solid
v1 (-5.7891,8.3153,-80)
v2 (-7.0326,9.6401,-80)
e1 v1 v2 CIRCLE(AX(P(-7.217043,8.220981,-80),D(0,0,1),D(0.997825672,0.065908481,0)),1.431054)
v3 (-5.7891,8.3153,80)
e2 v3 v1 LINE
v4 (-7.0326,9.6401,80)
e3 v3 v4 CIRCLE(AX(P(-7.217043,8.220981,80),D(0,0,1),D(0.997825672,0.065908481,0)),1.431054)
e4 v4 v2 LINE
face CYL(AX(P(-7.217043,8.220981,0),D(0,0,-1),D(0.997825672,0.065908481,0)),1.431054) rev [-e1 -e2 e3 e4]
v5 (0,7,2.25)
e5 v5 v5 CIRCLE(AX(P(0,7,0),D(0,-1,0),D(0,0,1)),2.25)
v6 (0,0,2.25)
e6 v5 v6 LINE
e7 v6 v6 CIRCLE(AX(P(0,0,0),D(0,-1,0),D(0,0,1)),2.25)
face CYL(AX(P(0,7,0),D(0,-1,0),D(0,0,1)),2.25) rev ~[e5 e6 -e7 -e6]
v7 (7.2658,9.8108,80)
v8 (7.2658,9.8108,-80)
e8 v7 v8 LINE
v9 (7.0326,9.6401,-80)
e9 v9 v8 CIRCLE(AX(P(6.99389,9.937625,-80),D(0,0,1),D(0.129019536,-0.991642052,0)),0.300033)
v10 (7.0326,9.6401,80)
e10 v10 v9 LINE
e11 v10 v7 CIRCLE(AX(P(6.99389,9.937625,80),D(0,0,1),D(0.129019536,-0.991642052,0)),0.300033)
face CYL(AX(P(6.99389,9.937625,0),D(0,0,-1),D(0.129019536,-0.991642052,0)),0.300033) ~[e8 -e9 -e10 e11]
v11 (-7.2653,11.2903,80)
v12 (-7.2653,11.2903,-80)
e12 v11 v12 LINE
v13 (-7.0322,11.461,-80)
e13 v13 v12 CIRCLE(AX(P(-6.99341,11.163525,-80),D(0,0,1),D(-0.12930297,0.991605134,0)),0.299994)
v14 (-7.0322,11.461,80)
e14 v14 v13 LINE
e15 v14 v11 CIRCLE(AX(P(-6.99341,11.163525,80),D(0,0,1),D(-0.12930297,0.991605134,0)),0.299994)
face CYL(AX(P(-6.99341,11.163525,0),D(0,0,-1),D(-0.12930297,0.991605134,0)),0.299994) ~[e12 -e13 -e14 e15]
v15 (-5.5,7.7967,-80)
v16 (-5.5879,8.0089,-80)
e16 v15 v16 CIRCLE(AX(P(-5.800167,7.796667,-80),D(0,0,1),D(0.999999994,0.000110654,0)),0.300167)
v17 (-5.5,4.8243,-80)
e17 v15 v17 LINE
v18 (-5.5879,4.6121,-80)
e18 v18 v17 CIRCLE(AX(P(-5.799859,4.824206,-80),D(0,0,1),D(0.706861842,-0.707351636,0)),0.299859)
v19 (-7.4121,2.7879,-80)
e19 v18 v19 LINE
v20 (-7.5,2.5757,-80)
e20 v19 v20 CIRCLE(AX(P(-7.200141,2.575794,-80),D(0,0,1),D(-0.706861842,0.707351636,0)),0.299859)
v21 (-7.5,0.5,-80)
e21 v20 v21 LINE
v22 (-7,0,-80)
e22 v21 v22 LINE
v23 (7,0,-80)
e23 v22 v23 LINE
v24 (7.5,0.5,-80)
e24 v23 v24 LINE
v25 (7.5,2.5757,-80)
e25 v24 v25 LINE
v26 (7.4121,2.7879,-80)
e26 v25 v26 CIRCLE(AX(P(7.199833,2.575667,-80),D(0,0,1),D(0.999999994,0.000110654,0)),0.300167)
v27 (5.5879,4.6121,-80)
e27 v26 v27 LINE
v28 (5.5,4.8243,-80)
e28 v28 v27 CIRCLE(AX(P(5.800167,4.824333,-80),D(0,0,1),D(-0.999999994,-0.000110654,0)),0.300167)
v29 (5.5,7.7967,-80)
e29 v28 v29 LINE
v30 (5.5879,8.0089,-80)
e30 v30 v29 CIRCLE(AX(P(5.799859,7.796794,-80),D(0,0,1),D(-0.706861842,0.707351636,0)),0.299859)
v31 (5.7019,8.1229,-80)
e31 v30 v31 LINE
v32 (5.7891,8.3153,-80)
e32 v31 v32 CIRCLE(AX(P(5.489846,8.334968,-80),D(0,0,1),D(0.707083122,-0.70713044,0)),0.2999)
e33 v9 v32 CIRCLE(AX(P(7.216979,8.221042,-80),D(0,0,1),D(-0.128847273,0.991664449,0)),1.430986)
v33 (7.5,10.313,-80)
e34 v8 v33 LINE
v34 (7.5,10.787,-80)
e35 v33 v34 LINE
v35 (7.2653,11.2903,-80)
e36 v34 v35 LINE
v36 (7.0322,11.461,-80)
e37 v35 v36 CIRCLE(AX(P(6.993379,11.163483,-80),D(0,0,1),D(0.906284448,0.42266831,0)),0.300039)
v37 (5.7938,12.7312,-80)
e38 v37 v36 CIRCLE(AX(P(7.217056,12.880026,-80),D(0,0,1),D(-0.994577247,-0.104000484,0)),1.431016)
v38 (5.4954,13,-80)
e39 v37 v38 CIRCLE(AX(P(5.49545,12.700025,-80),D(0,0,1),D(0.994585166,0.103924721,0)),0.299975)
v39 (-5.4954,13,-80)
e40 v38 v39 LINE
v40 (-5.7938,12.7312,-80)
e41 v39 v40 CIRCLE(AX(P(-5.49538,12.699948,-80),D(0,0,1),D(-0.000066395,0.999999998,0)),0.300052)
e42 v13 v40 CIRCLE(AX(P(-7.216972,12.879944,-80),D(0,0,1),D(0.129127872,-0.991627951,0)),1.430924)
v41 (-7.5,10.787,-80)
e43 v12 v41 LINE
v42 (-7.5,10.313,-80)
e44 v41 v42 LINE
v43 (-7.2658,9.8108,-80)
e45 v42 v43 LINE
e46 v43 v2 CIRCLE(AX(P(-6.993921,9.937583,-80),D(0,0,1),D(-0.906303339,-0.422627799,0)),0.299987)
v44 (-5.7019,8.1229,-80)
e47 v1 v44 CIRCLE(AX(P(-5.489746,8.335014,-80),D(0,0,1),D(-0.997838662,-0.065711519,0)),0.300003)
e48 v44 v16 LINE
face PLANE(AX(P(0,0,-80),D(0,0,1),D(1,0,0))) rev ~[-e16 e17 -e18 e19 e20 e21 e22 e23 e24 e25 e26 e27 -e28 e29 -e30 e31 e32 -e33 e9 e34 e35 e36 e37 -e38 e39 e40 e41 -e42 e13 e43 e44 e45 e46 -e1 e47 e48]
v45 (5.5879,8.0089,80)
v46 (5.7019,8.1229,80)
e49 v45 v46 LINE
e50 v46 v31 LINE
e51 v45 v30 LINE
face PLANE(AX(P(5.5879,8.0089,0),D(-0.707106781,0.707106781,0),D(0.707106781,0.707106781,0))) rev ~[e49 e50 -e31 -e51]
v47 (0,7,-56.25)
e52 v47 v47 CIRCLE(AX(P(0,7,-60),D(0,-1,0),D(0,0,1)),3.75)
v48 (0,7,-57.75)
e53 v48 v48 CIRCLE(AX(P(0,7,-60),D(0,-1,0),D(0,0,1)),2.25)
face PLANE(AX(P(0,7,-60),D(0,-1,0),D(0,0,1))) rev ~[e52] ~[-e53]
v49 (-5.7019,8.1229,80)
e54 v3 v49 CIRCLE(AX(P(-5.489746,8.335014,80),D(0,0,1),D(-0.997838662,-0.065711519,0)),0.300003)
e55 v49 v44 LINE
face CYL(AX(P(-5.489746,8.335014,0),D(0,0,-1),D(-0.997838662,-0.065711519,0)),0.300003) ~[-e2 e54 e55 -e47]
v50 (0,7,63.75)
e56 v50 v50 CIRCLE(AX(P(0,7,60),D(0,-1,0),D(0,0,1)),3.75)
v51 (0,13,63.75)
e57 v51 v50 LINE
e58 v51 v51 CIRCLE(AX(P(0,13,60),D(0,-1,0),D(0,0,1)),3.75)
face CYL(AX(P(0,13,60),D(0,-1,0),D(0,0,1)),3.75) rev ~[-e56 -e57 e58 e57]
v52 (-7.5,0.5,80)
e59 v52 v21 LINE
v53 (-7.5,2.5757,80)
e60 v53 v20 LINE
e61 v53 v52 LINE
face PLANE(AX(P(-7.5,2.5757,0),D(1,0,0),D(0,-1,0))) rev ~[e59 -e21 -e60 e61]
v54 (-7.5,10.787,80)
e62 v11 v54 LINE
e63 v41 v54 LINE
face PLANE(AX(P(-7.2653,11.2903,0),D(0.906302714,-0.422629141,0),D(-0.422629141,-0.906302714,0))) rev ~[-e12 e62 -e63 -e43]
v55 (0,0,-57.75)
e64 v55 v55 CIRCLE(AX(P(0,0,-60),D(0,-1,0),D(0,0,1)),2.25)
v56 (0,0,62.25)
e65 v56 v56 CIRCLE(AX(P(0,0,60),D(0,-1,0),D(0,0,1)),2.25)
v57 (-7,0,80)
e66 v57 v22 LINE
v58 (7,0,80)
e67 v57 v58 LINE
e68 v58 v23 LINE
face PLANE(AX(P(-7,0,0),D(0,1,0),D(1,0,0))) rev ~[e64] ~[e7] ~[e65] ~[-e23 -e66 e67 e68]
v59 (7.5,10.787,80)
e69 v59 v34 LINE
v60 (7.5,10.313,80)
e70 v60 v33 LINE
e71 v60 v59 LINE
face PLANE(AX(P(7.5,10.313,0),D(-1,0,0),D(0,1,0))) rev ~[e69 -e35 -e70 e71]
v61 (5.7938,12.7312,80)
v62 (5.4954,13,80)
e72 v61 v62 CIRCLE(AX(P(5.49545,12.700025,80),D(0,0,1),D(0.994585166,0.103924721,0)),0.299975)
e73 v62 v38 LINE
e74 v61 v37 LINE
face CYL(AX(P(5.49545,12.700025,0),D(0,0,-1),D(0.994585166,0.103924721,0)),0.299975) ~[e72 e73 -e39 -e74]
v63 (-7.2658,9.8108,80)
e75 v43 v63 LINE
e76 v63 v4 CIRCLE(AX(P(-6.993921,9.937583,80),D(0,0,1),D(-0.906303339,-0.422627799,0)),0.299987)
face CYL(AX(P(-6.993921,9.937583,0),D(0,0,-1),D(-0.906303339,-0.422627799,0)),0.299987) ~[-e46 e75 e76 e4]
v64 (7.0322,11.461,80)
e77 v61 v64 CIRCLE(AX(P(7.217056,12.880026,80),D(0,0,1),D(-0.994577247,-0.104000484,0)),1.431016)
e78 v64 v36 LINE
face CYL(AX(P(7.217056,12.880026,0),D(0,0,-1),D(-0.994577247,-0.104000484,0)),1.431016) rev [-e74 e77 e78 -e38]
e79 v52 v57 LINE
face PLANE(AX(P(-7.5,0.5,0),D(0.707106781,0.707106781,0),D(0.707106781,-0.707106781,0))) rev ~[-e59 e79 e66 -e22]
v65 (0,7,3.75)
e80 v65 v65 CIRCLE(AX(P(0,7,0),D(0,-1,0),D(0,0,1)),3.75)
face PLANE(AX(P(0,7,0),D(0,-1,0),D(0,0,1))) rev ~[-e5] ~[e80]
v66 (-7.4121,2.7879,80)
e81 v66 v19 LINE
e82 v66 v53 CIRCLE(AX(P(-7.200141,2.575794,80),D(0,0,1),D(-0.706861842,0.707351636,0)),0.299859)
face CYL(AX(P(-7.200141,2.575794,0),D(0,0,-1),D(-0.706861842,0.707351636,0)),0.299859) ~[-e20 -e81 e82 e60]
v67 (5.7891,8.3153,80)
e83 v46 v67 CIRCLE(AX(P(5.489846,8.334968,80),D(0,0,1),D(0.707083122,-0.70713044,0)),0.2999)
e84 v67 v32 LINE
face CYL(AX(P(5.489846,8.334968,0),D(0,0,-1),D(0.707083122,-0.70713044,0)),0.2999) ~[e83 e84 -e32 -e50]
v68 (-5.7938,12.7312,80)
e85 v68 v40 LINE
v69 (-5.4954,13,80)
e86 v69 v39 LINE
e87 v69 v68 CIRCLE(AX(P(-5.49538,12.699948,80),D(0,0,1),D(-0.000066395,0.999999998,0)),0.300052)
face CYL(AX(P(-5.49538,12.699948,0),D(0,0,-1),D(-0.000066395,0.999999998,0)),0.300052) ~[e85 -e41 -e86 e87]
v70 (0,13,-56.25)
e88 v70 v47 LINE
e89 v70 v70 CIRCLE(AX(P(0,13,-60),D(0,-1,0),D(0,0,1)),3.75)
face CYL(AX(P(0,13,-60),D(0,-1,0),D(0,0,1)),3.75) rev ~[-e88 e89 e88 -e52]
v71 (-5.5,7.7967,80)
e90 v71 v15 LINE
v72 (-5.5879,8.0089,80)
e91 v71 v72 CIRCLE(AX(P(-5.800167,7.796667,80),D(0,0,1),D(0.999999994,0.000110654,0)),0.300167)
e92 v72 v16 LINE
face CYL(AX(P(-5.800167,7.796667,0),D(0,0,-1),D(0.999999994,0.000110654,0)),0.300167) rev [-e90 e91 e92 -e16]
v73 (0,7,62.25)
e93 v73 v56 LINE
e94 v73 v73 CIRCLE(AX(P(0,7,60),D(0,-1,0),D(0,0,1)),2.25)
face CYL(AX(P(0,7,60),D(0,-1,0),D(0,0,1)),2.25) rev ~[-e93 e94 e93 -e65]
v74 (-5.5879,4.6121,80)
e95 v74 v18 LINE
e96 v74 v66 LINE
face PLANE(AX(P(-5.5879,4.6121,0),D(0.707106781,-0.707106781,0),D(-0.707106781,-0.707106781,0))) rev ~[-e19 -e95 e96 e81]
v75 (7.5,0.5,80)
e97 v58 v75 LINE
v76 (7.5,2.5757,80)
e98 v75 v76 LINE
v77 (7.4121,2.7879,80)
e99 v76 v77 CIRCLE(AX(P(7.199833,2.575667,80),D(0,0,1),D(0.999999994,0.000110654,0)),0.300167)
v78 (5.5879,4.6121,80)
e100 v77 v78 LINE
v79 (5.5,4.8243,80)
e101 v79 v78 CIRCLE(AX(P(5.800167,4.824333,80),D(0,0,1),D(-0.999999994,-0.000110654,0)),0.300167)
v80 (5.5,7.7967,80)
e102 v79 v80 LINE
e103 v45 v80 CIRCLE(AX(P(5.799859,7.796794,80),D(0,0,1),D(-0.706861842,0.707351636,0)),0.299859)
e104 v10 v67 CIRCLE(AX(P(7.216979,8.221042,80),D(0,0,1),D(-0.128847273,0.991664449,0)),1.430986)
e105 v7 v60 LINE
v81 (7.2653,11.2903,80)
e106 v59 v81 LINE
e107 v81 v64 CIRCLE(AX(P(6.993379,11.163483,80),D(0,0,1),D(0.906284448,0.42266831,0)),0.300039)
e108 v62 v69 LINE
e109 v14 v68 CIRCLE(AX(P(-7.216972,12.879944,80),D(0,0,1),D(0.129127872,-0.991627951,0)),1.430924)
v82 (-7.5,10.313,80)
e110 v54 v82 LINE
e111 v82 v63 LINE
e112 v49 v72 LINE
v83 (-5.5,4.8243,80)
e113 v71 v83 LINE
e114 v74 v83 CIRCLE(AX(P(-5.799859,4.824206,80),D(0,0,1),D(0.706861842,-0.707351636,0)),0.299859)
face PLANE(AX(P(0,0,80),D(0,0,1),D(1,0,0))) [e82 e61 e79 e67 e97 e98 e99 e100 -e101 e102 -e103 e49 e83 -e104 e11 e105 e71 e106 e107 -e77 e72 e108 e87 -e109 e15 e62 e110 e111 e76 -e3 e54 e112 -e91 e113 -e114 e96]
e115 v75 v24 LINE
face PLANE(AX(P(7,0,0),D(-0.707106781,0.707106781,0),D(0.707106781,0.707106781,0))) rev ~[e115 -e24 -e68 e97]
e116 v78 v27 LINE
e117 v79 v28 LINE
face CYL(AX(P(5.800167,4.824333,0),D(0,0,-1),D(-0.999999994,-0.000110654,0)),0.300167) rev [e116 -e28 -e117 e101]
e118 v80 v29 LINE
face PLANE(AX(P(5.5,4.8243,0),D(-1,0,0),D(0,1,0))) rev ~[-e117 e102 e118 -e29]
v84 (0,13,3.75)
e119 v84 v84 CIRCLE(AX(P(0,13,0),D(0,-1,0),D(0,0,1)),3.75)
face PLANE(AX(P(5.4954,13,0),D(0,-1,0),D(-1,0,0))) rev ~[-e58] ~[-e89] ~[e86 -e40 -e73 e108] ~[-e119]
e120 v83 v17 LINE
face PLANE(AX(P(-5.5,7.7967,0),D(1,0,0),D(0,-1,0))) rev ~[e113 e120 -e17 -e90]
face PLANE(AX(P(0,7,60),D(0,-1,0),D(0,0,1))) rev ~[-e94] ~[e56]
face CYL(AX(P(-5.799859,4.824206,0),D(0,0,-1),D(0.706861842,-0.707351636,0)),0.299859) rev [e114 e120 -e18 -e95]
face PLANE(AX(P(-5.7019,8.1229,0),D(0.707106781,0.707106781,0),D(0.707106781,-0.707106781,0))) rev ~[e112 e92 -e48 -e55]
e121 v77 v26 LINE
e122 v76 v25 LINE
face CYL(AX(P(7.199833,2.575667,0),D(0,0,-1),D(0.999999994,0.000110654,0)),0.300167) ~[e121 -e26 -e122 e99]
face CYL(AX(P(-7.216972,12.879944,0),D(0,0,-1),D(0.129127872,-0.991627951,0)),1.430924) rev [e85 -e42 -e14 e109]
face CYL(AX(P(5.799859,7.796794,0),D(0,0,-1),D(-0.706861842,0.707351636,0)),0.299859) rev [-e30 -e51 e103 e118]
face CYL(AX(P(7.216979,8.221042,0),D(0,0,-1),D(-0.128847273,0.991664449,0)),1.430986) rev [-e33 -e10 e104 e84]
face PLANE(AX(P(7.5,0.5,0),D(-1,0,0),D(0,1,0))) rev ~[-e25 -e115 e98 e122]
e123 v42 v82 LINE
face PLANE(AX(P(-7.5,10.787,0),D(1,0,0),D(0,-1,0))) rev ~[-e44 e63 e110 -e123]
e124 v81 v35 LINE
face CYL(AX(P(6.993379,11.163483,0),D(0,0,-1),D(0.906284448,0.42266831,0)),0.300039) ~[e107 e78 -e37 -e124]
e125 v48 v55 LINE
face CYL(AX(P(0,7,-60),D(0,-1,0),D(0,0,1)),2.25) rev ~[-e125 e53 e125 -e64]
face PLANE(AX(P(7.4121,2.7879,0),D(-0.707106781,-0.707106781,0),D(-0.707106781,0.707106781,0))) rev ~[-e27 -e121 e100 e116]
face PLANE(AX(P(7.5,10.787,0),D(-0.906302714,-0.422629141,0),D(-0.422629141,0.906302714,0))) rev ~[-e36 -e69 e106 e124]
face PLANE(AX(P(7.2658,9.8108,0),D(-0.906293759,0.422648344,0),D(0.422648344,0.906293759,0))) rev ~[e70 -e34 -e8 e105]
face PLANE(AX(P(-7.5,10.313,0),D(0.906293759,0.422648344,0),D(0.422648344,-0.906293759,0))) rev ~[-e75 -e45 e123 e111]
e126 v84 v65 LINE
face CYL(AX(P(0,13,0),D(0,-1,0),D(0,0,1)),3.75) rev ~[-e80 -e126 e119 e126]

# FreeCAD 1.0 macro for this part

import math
import FreeCAD as App
import Part
import Sketcher
from FreeCAD import Vector
Q = App.Units.Quantity

doc = App.newDocument("Part")
body = doc.addObject("PartDesign::Body", "Body")

sketch1 = body.newObject("Sketcher::SketchObject", "Sketch")
sketch1.AttachmentSupport = (doc.getObject("XY_Plane"), [""])
sketch1.MapMode = "FlatFace"
sketch1.addGeometry([
    Part.LineSegment(Vector(-7.27, 11.29, 0), Vector(-7.5, 10.79, 0)),
    Part.LineSegment(Vector(-7.5, 10.79, 0), Vector(-7.5, 10.31, 0)),
    Part.LineSegment(Vector(-7.5, 10.31, 0), Vector(-7.27, 9.81, 0)),
    Part.ArcOfCircle(Part.Circle(Vector(-6.99, 9.94, 0), Vector(0, 0, 1), 0.3), math.radians(-155), math.radians(-97)),
    Part.ArcOfCircle(Part.Circle(Vector(-7.22, 8.22, 0), Vector(0, 0, 1), 1.43), math.radians(4), math.radians(83)),
    Part.ArcOfCircle(Part.Circle(Vector(-5.49, 8.34, 0), Vector(0, 0, 1), 0.3), math.radians(-176), math.radians(-135)),
    Part.LineSegment(Vector(-5.7, 8.12, 0), Vector(-5.59, 8.01, 0)),
    Part.ArcOfCircle(Part.Circle(Vector(-5.8, 7.8, 0), Vector(0, 0, 1), 0.3), math.radians(0), math.radians(45)),
    Part.LineSegment(Vector(-5.5, 7.8, 0), Vector(-5.5, 4.82, 0)),
    Part.ArcOfCircle(Part.Circle(Vector(-5.8, 4.82, 0), Vector(0, 0, 1), 0.3), math.radians(-45), math.radians(0)),
    Part.LineSegment(Vector(-5.59, 4.61, 0), Vector(-7.41, 2.79, 0)),
    Part.ArcOfCircle(Part.Circle(Vector(-7.2, 2.58, 0), Vector(0, 0, 1), 0.3), math.radians(135), math.radians(180)),
    Part.LineSegment(Vector(-7.5, 2.58, 0), Vector(-7.5, 0.5, 0)),
    Part.LineSegment(Vector(-7.5, 0.5, 0), Vector(-7, 0, 0)),
    Part.LineSegment(Vector(-7, 0, 0), Vector(7, 0, 0)),
    Part.LineSegment(Vector(7, 0, 0), Vector(7.5, 0.5, 0)),
    Part.LineSegment(Vector(7.5, 0.5, 0), Vector(7.5, 2.58, 0)),
    Part.ArcOfCircle(Part.Circle(Vector(7.2, 2.58, 0), Vector(0, 0, 1), 0.3), math.radians(0), math.radians(45)),
    Part.LineSegment(Vector(7.41, 2.79, 0), Vector(5.59, 4.61, 0)),
    Part.ArcOfCircle(Part.Circle(Vector(5.8, 4.82, 0), Vector(0, 0, 1), 0.3), math.radians(180), math.radians(225)),
    Part.LineSegment(Vector(5.5, 4.82, 0), Vector(5.5, 7.8, 0)),
    Part.ArcOfCircle(Part.Circle(Vector(5.8, 7.8, 0), Vector(0, 0, 1), 0.3), math.radians(135), math.radians(180)),
    Part.LineSegment(Vector(5.59, 8.01, 0), Vector(5.7, 8.12, 0)),
    Part.ArcOfCircle(Part.Circle(Vector(5.49, 8.34, 0), Vector(0, 0, 1), 0.3), math.radians(-45), math.radians(-4)),
    Part.ArcOfCircle(Part.Circle(Vector(7.22, 8.22, 0), Vector(0, 0, 1), 1.43), math.radians(97), math.radians(176)),
    Part.ArcOfCircle(Part.Circle(Vector(6.99, 9.94, 0), Vector(0, 0, 1), 0.3), math.radians(-83), math.radians(-25)),
    Part.LineSegment(Vector(7.27, 9.81, 0), Vector(7.5, 10.31, 0)),
    Part.LineSegment(Vector(7.5, 10.31, 0), Vector(7.5, 10.79, 0)),
    Part.LineSegment(Vector(7.5, 10.79, 0), Vector(7.27, 11.29, 0)),
    Part.ArcOfCircle(Part.Circle(Vector(6.99, 11.16, 0), Vector(0, 0, 1), 0.3), math.radians(25), math.radians(83)),
    Part.ArcOfCircle(Part.Circle(Vector(7.22, 12.88, 0), Vector(0, 0, 1), 1.43), math.radians(-174), math.radians(-97)),
    Part.ArcOfCircle(Part.Circle(Vector(5.5, 12.7, 0), Vector(0, 0, 1), 0.3), math.radians(6), math.radians(90)),
    Part.LineSegment(Vector(5.5, 13, 0), Vector(-5.5, 13, 0)),
    Part.ArcOfCircle(Part.Circle(Vector(-5.5, 12.7, 0), Vector(0, 0, 1), 0.3), math.radians(90), math.radians(174)),
    Part.ArcOfCircle(Part.Circle(Vector(-7.22, 12.88, 0), Vector(0, 0, 1), 1.43), math.radians(-83), math.radians(-6)),
    Part.ArcOfCircle(Part.Circle(Vector(-6.99, 11.16, 0), Vector(0, 0, 1), 0.3), math.radians(97), math.radians(155)),
], False)
sketch1.addConstraint([
    Sketcher.Constraint("Coincident", 0, 2, 1, 1),
    Sketcher.Constraint("Coincident", 1, 2, 2, 1),
    Sketcher.Constraint("Tangent", 2, 2, 3, 1),
    Sketcher.Constraint("Tangent", 3, 2, 4, 2),
    Sketcher.Constraint("Tangent", 4, 1, 5, 1),
    Sketcher.Constraint("Tangent", 5, 2, 6, 1),
    Sketcher.Constraint("Tangent", 6, 2, 7, 2),
    Sketcher.Constraint("Tangent", 7, 1, 8, 1),
    Sketcher.Constraint("Tangent", 8, 2, 9, 2),
    Sketcher.Constraint("Tangent", 9, 1, 10, 1),
    Sketcher.Constraint("Tangent", 10, 2, 11, 1),
    Sketcher.Constraint("Tangent", 11, 2, 12, 1),
    Sketcher.Constraint("Coincident", 12, 2, 13, 1),
    Sketcher.Constraint("Coincident", 13, 2, 14, 1),
    Sketcher.Constraint("Coincident", 14, 2, 15, 1),
    Sketcher.Constraint("Coincident", 15, 2, 16, 1),
    Sketcher.Constraint("Tangent", 16, 2, 17, 1),
    Sketcher.Constraint("Tangent", 17, 2, 18, 1),
    Sketcher.Constraint("Tangent", 18, 2, 19, 2),
    Sketcher.Constraint("Tangent", 19, 1, 20, 1),
    Sketcher.Constraint("Tangent", 20, 2, 21, 2),
    Sketcher.Constraint("Tangent", 21, 1, 22, 1),
    Sketcher.Constraint("Tangent", 22, 2, 23, 1),
    Sketcher.Constraint("Tangent", 23, 2, 24, 2),
    Sketcher.Constraint("Tangent", 24, 1, 25, 1),
    Sketcher.Constraint("Tangent", 25, 2, 26, 1),
    Sketcher.Constraint("Coincident", 26, 2, 27, 1),
    Sketcher.Constraint("Coincident", 27, 2, 28, 1),
    Sketcher.Constraint("Tangent", 28, 2, 29, 1),
    Sketcher.Constraint("Tangent", 29, 2, 30, 2),
    Sketcher.Constraint("Tangent", 30, 1, 31, 1),
    Sketcher.Constraint("Tangent", 31, 2, 32, 1),
    Sketcher.Constraint("Tangent", 32, 2, 33, 1),
    Sketcher.Constraint("Tangent", 33, 2, 34, 2),
    Sketcher.Constraint("Tangent", 34, 1, 35, 1),
    Sketcher.Constraint("Tangent", 35, 2, 0, 1),
    Sketcher.Constraint("Vertical", 1),
    Sketcher.Constraint("Vertical", 8),
    Sketcher.Constraint("Vertical", 12),
    Sketcher.Constraint("Horizontal", 14),
    Sketcher.Constraint("Vertical", 16),
    Sketcher.Constraint("Vertical", 20),
    Sketcher.Constraint("Vertical", 27),
    Sketcher.Constraint("Horizontal", 32),
    Sketcher.Constraint("Equal", 3, 5),
    Sketcher.Constraint("Equal", 5, 7),
    Sketcher.Constraint("Equal", 7, 9),
    Sketcher.Constraint("Equal", 9, 11),
    Sketcher.Constraint("Equal", 11, 17),
    Sketcher.Constraint("Equal", 17, 19),
    Sketcher.Constraint("Equal", 19, 21),
    Sketcher.Constraint("Equal", 21, 23),
    Sketcher.Constraint("Equal", 4, 24),
    Sketcher.Constraint("Equal", 23, 25),
    Sketcher.Constraint("Equal", 25, 29),
    Sketcher.Constraint("Equal", 24, 30),
    Sketcher.Constraint("Equal", 29, 31),
    Sketcher.Constraint("Equal", 31, 33),
    Sketcher.Constraint("Equal", 30, 34),
    Sketcher.Constraint("Equal", 33, 35),
    Sketcher.Constraint("Symmetric", 13, 2, 14, 2, -1, 1),
    Sketcher.Constraint("Symmetric", 11, 3, 17, 3, -2),
    Sketcher.Constraint("Symmetric", 9, 3, 19, 3, -2),
    Sketcher.Constraint("Symmetric", 5, 3, 23, 3, -2),
    Sketcher.Constraint("Symmetric", 3, 3, 25, 3, -2),
    Sketcher.Constraint("Symmetric", 30, 3, 34, 3, -2),
    Sketcher.Constraint("Symmetric", 1, 2, 26, 2, -2),
    Sketcher.Constraint("Symmetric", 28, 2, 35, 2, -2),
    Sketcher.Constraint("Perpendicular", 6, 10),
    Sketcher.Constraint("Perpendicular", 10, 13),
    Sketcher.Constraint("Perpendicular", 13, 15),
    Sketcher.Constraint("Perpendicular", 15, 18),
    Sketcher.Constraint("Perpendicular", 18, 22),
    Sketcher.Constraint("Parallel", 0, 26),
    Sketcher.Constraint("Vertical", 24, 3, 30, 3),
    Sketcher.Constraint("Vertical", 1, 2, 11, 2),
    Sketcher.Constraint("Radius", 3, Q("0.3 mm")),
    Sketcher.Constraint("DistanceX", 14, 1, 14, 2, Q("14 mm")),
    Sketcher.Constraint("Angle", 0, Q("-115.0007 deg")),
    Sketcher.Constraint("DistanceY", -1, 1, 31, 2, Q("13 mm")),
    Sketcher.Constraint("Radius", 4, Q("1.431 mm")),
    Sketcher.Constraint("DistanceX", 9, 3, 17, 3, Q("13 mm")),
    Sketcher.Constraint("DistanceX", 11, 2, 8, 2, Q("2 mm")),
    Sketcher.Constraint("DistanceY", 1, 2, 1, 1, Q("0.474 mm")),
    Sketcher.Constraint("DistanceY", -1, 1, 30, 3, Q("12.88 mm")),
    Sketcher.Constraint("DistanceY", -1, 1, 3, 2, Q("9.64 mm")),
    Sketcher.Constraint("DistanceX", 32, 2, 32, 1, Q("10.9908 mm")),
    Sketcher.Constraint("DistanceY", 8, 2, 8, 1, Q("2.9724 mm")),
    Sketcher.Constraint("DistanceY", 12, 2, 12, 1, Q("2.0757 mm")),
    Sketcher.Constraint("DistanceX", 3, 3, -1, 1, Q("6.994 mm")),
])
pad1 = body.newObject("PartDesign::Pad", "Pad")
pad1.Profile = sketch1
pad1.Length = 160
pad1.Midplane = True

sketch2 = body.newObject("Sketcher::SketchObject", "Sketch001")
sketch2.AttachmentSupport = (doc.getObject("XZ_Plane"), [""])
sketch2.MapMode = "FlatFace"
sketch2.AttachmentOffset = App.Placement(Vector(0, 0, -13), App.Rotation())
sketch2.addGeometry(Part.Circle(Vector(0, 60, 0), Vector(0, 0, 1), 2.2), False)
sketch2.addConstraint([
    Sketcher.Constraint("PointOnObject", 0, 3, -2),
    Sketcher.Constraint("Diameter", 0, Q("4.5 mm")),
    Sketcher.Constraint("DistanceY", -1, 1, 0, 3, Q("60 mm")),
])
doc.recompute()
hole = body.newObject("PartDesign::Hole", "Hole")
hole.Profile = sketch2
hole.ThreadType = "None"
hole.Diameter = 4.5
hole.DepthType = "Dimension"
hole.Depth = 13
hole.DrillPoint = "Flat"
hole.HoleCutType = "Counterbore"
hole.HoleCutDiameter = 7.5
hole.HoleCutDepth = 6
hole.Reversed = True
doc.recompute()

linearpattern = body.newObject("PartDesign::LinearPattern", "LinearPattern")
linearpattern.Originals = [hole]
linearpattern.Direction = (doc.getObject("Z_Axis"), [""])
linearpattern.Mode = "offset"
linearpattern.Offset = 60
linearpattern.Occurrences = 3
linearpattern.Reversed = True
body.Tip = linearpattern

doc.recompute()
